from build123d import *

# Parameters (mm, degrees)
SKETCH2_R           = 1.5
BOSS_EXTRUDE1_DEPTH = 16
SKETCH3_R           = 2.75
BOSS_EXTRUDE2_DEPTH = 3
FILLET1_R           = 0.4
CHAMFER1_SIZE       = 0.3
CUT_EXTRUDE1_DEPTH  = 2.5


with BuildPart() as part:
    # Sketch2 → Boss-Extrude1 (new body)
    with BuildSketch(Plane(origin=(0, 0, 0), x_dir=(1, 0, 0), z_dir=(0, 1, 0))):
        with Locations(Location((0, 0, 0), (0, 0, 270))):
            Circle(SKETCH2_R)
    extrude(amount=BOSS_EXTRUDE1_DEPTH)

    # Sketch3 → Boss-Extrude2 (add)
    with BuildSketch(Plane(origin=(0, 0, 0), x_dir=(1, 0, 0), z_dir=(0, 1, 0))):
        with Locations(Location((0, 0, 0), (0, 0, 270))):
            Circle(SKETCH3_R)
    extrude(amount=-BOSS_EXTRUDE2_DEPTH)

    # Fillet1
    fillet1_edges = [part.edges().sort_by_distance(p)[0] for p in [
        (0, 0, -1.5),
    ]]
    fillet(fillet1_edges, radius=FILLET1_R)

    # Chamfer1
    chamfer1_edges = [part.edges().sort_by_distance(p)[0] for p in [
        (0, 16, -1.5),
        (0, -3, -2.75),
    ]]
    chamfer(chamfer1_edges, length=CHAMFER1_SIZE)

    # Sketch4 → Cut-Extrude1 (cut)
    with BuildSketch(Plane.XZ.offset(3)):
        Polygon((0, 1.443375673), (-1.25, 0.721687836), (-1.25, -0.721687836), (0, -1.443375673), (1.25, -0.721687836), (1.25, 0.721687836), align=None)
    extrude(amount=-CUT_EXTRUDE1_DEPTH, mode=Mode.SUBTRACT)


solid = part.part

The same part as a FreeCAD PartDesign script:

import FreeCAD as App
import Part
import Sketcher

V = App.Vector
Q = App.Units.Quantity


def edges_at(feature, points):
    """Names of the edges that pass closest to the given points."""
    edges = feature.Shape.Edges
    near = lambda p: min(range(len(edges)), key=lambda i: edges[i].distToShape(Part.Vertex(*p))[0])
    return sorted({f"Edge{near(p) + 1}" for p in points})

doc = App.newDocument("Part")
params = doc.addObject("Spreadsheet::Sheet", "Params")
for row, (alias, value) in enumerate([
    ("sketch1_diameter", "3 mm"),
    ("pad1_length", "16 mm"),
    ("sketch2_diameter", "5.5 mm"),
    ("pad2_length", "3 mm"),
    ("fillet_radius", "0.4 mm"),
    ("chamfer_size", "0.3 mm"),
    ("pocket1_length", "2.5 mm"),
], start=1):
    params.set(f"A{row}", alias)
    params.set(f"B{row}", "=" + value)
    params.setAlias(f"B{row}", alias)

body = doc.addObject("PartDesign::Body", "Body")

# Sketch on XZ plane
sketch1 = body.newObject("Sketcher::SketchObject", "Sketch")
sketch1.AttachmentSupport = (doc.getObject("XZ_Plane"), [""])
sketch1.MapMode = "FlatFace"
sketch1.addGeometry(Part.Circle(V(0, 0, 0), V(0, 0, 1), 1.5), False)
sketch1.addConstraint(Sketcher.Constraint("Coincident", 0, 3, -1, 1))
sketch1.addConstraint(Sketcher.Constraint("Diameter", 0, Q("3 mm")))
sketch1.setExpression("Constraints[1]", "Params.sketch1_diameter")
pad1 = body.newObject("PartDesign::Pad", "Pad")
pad1.Profile = sketch1
pad1.setExpression("Length", "Params.pad1_length")
pad1.Reversed = True

# Sketch on XZ plane
sketch2 = body.newObject("Sketcher::SketchObject", "Sketch001")
sketch2.AttachmentSupport = (doc.getObject("XZ_Plane"), [""])
sketch2.MapMode = "FlatFace"
sketch2.addGeometry(Part.Circle(V(0, 0, 0), V(0, 0, 1), 2.8), False)
sketch2.addConstraint(Sketcher.Constraint("Coincident", 0, 3, -1, 1))
sketch2.addConstraint(Sketcher.Constraint("Diameter", 0, Q("5.5 mm")))
sketch2.setExpression("Constraints[1]", "Params.sketch2_diameter")
pad2 = body.newObject("PartDesign::Pad", "Pad001")
pad2.Profile = sketch2
pad2.setExpression("Length", "Params.pad2_length")
doc.recompute()

fillet = body.newObject("PartDesign::Fillet", "Fillet")
fillet.Base = (pad2, edges_at(pad2, [(0, 0, -1.5)]))
fillet.setExpression("Radius", "Params.fillet_radius")
doc.recompute()

chamfer = body.newObject("PartDesign::Chamfer", "Chamfer")
chamfer.Base = (fillet, edges_at(fillet, [(0, 16, -1.5), (0, -3, -2.75)]))
chamfer.setExpression("Size", "Params.chamfer_size")

# Sketch on XZ plane
sketch3 = body.newObject("Sketcher::SketchObject", "Sketch002")
sketch3.AttachmentSupport = (doc.getObject("XZ_Plane"), [""])
sketch3.MapMode = "FlatFace"
sketch3.AttachmentOffset = App.Placement(V(0, 0, 3), App.Rotation())
sketch3.addGeometry(Part.LineSegment(V(0, 1.4, 0), V(-1.2, 0.7, 0)), False)
sketch3.addGeometry(Part.LineSegment(V(-1.2, 0.7, 0), V(-1.2, -0.7, 0)), False)
sketch3.addGeometry(Part.LineSegment(V(-1.2, -0.7, 0), V(0, -1.4, 0)), False)
sketch3.addGeometry(Part.LineSegment(V(0, -1.4, 0), V(1.2, -0.7, 0)), False)
sketch3.addGeometry(Part.LineSegment(V(1.2, -0.7, 0), V(1.2, 0.7, 0)), False)
sketch3.addGeometry(Part.LineSegment(V(1.2, 0.7, 0), V(0, 1.4, 0)), False)
sketch3.addConstraint(Sketcher.Constraint("Coincident", 0, 2, 1, 1))
sketch3.addConstraint(Sketcher.Constraint("Coincident", 1, 2, 2, 1))
sketch3.addConstraint(Sketcher.Constraint("Coincident", 2, 2, 3, 1))
sketch3.addConstraint(Sketcher.Constraint("Coincident", 3, 2, 4, 1))
sketch3.addConstraint(Sketcher.Constraint("Coincident", 4, 2, 5, 1))
sketch3.addConstraint(Sketcher.Constraint("Coincident", 5, 2, 0, 1))
sketch3.addConstraint(Sketcher.Constraint("Vertical", 1))
sketch3.addConstraint(Sketcher.Constraint("Vertical", 4))
sketch3.addConstraint(Sketcher.Constraint("Symmetric", 0, 2, 3, 2, -1, 1))
sketch3.addConstraint(Sketcher.Constraint("Symmetric", 2, 2, 5, 2, -1, 1))
sketch3.addConstraint(Sketcher.Constraint("PointOnObject", 2, 2, -2))
sketch3.addConstraint(Sketcher.Constraint("Parallel", 2, 5))
sketch3.addConstraint(Sketcher.Constraint("Horizontal", 1, 2, 3, 2))
sketch3.addConstraint(Sketcher.Constraint("Angle", 0, Q("-150 deg")))
sketch3.addConstraint(Sketcher.Constraint("DistanceX", 1, 2, 3, 2, Q("2.5 mm")))
sketch3.addConstraint(Sketcher.Constraint("DistanceY", 1, 2, 1, 1, Q("1.443376 mm")))
pocket1 = body.newObject("PartDesign::Pocket", "Pocket")
pocket1.Profile = sketch3
pocket1.setExpression("Length", "Params.pocket1_length")

doc.recompute()
